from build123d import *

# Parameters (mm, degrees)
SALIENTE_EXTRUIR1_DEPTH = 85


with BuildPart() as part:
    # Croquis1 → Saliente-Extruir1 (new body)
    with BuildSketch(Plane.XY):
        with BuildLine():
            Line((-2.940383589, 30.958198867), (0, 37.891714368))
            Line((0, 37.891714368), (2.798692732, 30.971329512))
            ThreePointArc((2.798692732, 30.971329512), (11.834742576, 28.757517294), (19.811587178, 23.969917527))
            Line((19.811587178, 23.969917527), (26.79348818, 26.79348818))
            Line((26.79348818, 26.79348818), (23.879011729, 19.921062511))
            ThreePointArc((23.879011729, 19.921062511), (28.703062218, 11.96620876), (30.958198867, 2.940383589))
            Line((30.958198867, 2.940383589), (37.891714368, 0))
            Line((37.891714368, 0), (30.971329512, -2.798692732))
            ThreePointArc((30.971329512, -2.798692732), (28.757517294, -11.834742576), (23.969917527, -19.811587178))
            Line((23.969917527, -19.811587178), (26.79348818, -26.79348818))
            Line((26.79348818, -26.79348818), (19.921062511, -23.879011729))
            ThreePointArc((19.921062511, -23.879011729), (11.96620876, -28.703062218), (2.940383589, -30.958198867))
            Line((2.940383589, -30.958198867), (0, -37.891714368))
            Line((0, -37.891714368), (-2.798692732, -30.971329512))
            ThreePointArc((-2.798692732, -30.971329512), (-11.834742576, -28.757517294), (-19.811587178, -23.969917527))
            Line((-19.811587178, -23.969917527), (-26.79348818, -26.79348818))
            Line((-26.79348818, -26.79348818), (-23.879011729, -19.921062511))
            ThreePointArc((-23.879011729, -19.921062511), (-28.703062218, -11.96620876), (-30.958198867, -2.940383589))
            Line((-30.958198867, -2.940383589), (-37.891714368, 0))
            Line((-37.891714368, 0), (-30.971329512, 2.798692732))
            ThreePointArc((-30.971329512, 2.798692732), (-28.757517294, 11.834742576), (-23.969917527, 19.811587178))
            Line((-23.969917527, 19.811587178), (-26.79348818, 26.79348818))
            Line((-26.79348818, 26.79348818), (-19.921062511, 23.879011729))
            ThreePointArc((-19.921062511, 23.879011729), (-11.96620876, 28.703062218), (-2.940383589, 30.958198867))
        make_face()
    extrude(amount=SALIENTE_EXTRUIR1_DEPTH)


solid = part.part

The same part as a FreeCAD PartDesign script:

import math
import FreeCAD as App
import Part
import Sketcher

V = App.Vector

doc = App.newDocument("Part")
params = doc.addObject("Spreadsheet::Sheet", "Params")
for row, (alias, value) in enumerate([
    ("pad1_length", "85 mm"),
], start=1):
    params.set(f"A{row}", alias)
    params.set(f"B{row}", "=" + value)
    params.setAlias(f"B{row}", alias)

body = doc.addObject("PartDesign::Body", "Body")

# Sketch on XY plane
sketch1 = body.newObject("Sketcher::SketchObject", "Sketch")
sketch1.AttachmentSupport = (doc.getObject("XY_Plane"), [""])
sketch1.MapMode = "FlatFace"
sketch1.addGeometry(Part.LineSegment(V(0, 37.891714, 0), V(-2.940384, 30.958199, 0)), False)
sketch1.addGeometry(Part.ArcOfCircle(Part.Circle(V(0, 0, 0), V(0, 0, 1), 31.097523), math.radians(95.425629), math.radians(129.836549)), False)
sketch1.addGeometry(Part.LineSegment(V(-19.921063, 23.879012, 0), V(-26.793488, 26.793488, 0)), False)
sketch1.addGeometry(Part.LineSegment(V(-26.793488, 26.793488, 0), V(-23.969918, 19.811587, 0)), False)
sketch1.addGeometry(Part.ArcOfCircle(Part.Circle(V(0, 0, 0), V(0, 0, 1), 31.097523), math.radians(140.425629), math.radians(174.836549)), False)
sketch1.addGeometry(Part.LineSegment(V(-30.97133, 2.798693, 0), V(-37.891714, 0, 0)), False)
sketch1.addGeometry(Part.LineSegment(V(-37.891714, 0, 0), V(-30.958199, -2.940384, 0)), False)
sketch1.addGeometry(Part.ArcOfCircle(Part.Circle(V(0, 0, 0), V(0, 0, 1), 31.097523), math.radians(-174.574371), math.radians(-140.163451)), False)
sketch1.addGeometry(Part.LineSegment(V(-23.879012, -19.921063, 0), V(-26.793488, -26.793488, 0)), False)
sketch1.addGeometry(Part.LineSegment(V(-26.793488, -26.793488, 0), V(-19.811587, -23.969918, 0)), False)
sketch1.addGeometry(Part.ArcOfCircle(Part.Circle(V(0, 0, 0), V(0, 0, 1), 31.097523), math.radians(-129.574371), math.radians(-95.163451)), False)
sketch1.addGeometry(Part.LineSegment(V(-2.798693, -30.97133, 0), V(0, -37.891714, 0)), False)
sketch1.addGeometry(Part.LineSegment(V(0, -37.891714, 0), V(2.940384, -30.958199, 0)), False)
sketch1.addGeometry(Part.ArcOfCircle(Part.Circle(V(0, 0, 0), V(0, 0, 1), 31.097523), math.radians(-84.574371), math.radians(-50.163451)), False)
sketch1.addGeometry(Part.LineSegment(V(19.921063, -23.879012, 0), V(26.793488, -26.793488, 0)), False)
sketch1.addGeometry(Part.LineSegment(V(26.793488, -26.793488, 0), V(23.969918, -19.811587, 0)), False)
sketch1.addGeometry(Part.ArcOfCircle(Part.Circle(V(0, 0, 0), V(0, 0, 1), 31.097523), math.radians(-39.574371), math.radians(-5.163451)), False)
sketch1.addGeometry(Part.LineSegment(V(30.97133, -2.798693, 0), V(37.891714, 0, 0)), False)
sketch1.addGeometry(Part.LineSegment(V(37.891714, 0, 0), V(30.958199, 2.940384, 0)), False)
sketch1.addGeometry(Part.ArcOfCircle(Part.Circle(V(0, 0, 0), V(0, 0, 1), 31.097523), math.radians(5.425629), math.radians(39.836549)), False)
sketch1.addGeometry(Part.LineSegment(V(23.879012, 19.921063, 0), V(26.793488, 26.793488, 0)), False)
sketch1.addGeometry(Part.LineSegment(V(26.793488, 26.793488, 0), V(19.811587, 23.969918, 0)), False)
sketch1.addGeometry(Part.ArcOfCircle(Part.Circle(V(0, 0, 0), V(0, 0, 1), 31.097523), math.radians(50.425629), math.radians(84.836549)), False)
sketch1.addGeometry(Part.LineSegment(V(2.798693, 30.97133, 0), V(0, 37.891714, 0)), False)
sketch1.addConstraint(Sketcher.Constraint("Coincident", 0, 2, 1, 1))
sketch1.addConstraint(Sketcher.Constraint("Coincident", 1, 2, 2, 1))
sketch1.addConstraint(Sketcher.Constraint("Coincident", 2, 2, 3, 1))
sketch1.addConstraint(Sketcher.Constraint("Coincident", 3, 2, 4, 1))
sketch1.addConstraint(Sketcher.Constraint("Coincident", 4, 2, 5, 1))
sketch1.addConstraint(Sketcher.Constraint("Coincident", 5, 2, 6, 1))
sketch1.addConstraint(Sketcher.Constraint("Coincident", 6, 2, 7, 1))
sketch1.addConstraint(Sketcher.Constraint("Coincident", 7, 2, 8, 1))
sketch1.addConstraint(Sketcher.Constraint("Coincident", 8, 2, 9, 1))
sketch1.addConstraint(Sketcher.Constraint("Coincident", 9, 2, 10, 1))
sketch1.addConstraint(Sketcher.Constraint("Coincident", 10, 2, 11, 1))
sketch1.addConstraint(Sketcher.Constraint("Coincident", 11, 2, 12, 1))
sketch1.addConstraint(Sketcher.Constraint("Coincident", 12, 2, 13, 1))
sketch1.addConstraint(Sketcher.Constraint("Coincident", 13, 2, 14, 1))
sketch1.addConstraint(Sketcher.Constraint("Coincident", 14, 2, 15, 1))
sketch1.addConstraint(Sketcher.Constraint("Coincident", 15, 2, 16, 1))
sketch1.addConstraint(Sketcher.Constraint("Coincident", 16, 2, 17, 1))
sketch1.addConstraint(Sketcher.Constraint("Coincident", 17, 2, 18, 1))
sketch1.addConstraint(Sketcher.Constraint("Coincident", 18, 2, 19, 1))
sketch1.addConstraint(Sketcher.Constraint("Coincident", 19, 2, 20, 1))
sketch1.addConstraint(Sketcher.Constraint("Coincident", 20, 2, 21, 1))
sketch1.addConstraint(Sketcher.Constraint("Coincident", 21, 2, 22, 1))
sketch1.addConstraint(Sketcher.Constraint("Coincident", 22, 2, 23, 1))
sketch1.addConstraint(Sketcher.Constraint("Coincident", 23, 2, 0, 1))
sketch1.addConstraint(Sketcher.Constraint("Coincident", 1, 3, -1, 1))
sketch1.addConstraint(Sketcher.Constraint("Coincident", 4, 3, -1, 1))
sketch1.addConstraint(Sketcher.Constraint("Coincident", 7, 3, -1, 1))
sketch1.addConstraint(Sketcher.Constraint("Coincident", 10, 3, -1, 1))
sketch1.addConstraint(Sketcher.Constraint("Coincident", 13, 3, -1, 1))
sketch1.addConstraint(Sketcher.Constraint("Coincident", 16, 3, -1, 1))
sketch1.addConstraint(Sketcher.Constraint("Coincident", 19, 3, -1, 1))
sketch1.addConstraint(Sketcher.Constraint("Coincident", 22, 3, -1, 1))
sketch1.addConstraint(Sketcher.Constraint("Equal", 1, 4))
sketch1.addConstraint(Sketcher.Constraint("Equal", 4, 7))
sketch1.addConstraint(Sketcher.Constraint("Equal", 7, 10))
sketch1.addConstraint(Sketcher.Constraint("Equal", 10, 13))
sketch1.addConstraint(Sketcher.Constraint("Equal", 13, 16))
sketch1.addConstraint(Sketcher.Constraint("Equal", 16, 19))
sketch1.addConstraint(Sketcher.Constraint("Equal", 19, 22))
sketch1.addConstraint(Sketcher.Constraint("Symmetric", 2, 2, 14, 2, -1, 1))
sketch1.addConstraint(Sketcher.Constraint("Symmetric", 5, 2, 17, 2, -1, 1))
sketch1.addConstraint(Sketcher.Constraint("Symmetric", 8, 2, 20, 2, -1, 1))
sketch1.addConstraint(Sketcher.Constraint("Symmetric", 11, 2, 23, 2, -1, 1))
sketch1.addConstraint(Sketcher.Constraint("Symmetric", 8, 2, 14, 2, -2))
sketch1.addConstraint(Sketcher.Constraint("PointOnObject", 5, 2, -1))
sketch1.addConstraint(Sketcher.Constraint("PointOnObject", 11, 2, -2))
sketch1.addConstraint(Sketcher.Constraint("Perpendicular", 0, 2))
sketch1.addConstraint(Sketcher.Constraint("Perpendicular", 3, 5))
sketch1.addConstraint(Sketcher.Constraint("Parallel", 2, 6))
sketch1.addConstraint(Sketcher.Constraint("Perpendicular", 6, 8))
sketch1.addConstraint(Sketcher.Constraint("Parallel", 5, 9))
sketch1.addConstraint(Sketcher.Constraint("Perpendicular", 9, 11))
sketch1.addConstraint(Sketcher.Constraint("Parallel", 8, 12))
sketch1.addConstraint(Sketcher.Constraint("Perpendicular", 12, 14))
sketch1.addConstraint(Sketcher.Constraint("Parallel", 11, 15))
sketch1.addConstraint(Sketcher.Constraint("Perpendicular", 15, 17))
sketch1.addConstraint(Sketcher.Constraint("Parallel", 14, 18))
sketch1.addConstraint(Sketcher.Constraint("Perpendicular", 18, 20))
sketch1.addConstraint(Sketcher.Constraint("Parallel", 17, 21))
sketch1.addConstraint(Sketcher.Constraint("Perpendicular", 21, 23))
sketch1.addConstraint(Sketcher.Constraint("Equal", 0, 3))
sketch1.addConstraint(Sketcher.Constraint("Equal", 2, 5))
sketch1.addConstraint(Sketcher.Constraint("Equal", 3, 6))
sketch1.addConstraint(Sketcher.Constraint("Equal", 5, 8))
sketch1.addConstraint(Sketcher.Constraint("Radius", 1, 31.097523))
sketch1.addConstraint(Sketcher.Constraint("DistanceY", -1, 1, 0, 2, 30.958199))
sketch1.addConstraint(Sketcher.Constraint("DistanceY", 3, 2, 2, 2, 6.981901))
pad1 = body.newObject("PartDesign::Pad", "Pad")
pad1.Profile = sketch1
pad1.setExpression("Length", "Params.pad1_length")

doc.recompute()
